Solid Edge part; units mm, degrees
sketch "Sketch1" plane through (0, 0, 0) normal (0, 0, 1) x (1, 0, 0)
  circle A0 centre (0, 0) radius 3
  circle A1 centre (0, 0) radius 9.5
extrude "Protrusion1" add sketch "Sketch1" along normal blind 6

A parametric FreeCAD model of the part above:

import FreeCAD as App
import Part
import Sketcher
from FreeCAD import Vector

doc = App.newDocument("Part")
body = doc.addObject("PartDesign::Body", "Body")

# Sketch on XY plane
sketch1 = doc.addObject("Sketcher::SketchObject", "Sketch")
body.addObject(sketch1)
sketch1.AttachmentSupport = (doc.XY_Plane, [""])
sketch1.MapMode = "FlatFace"
sketch1.addGeometry([
    Part.Circle(Vector(0, 0, 0), Vector(0, 0, 1), 9.5),
    Part.Circle(Vector(0, 0, 0), Vector(0, 0, 1), 3),
], False)
sketch1.addConstraint([
    Sketcher.Constraint("Coincident", 0, 3, -1, 1),
    Sketcher.Constraint("Coincident", 1, 3, -1, 1),
    Sketcher.Constraint("Diameter", 0, 19.0),
    Sketcher.Constraint("Diameter", 1, 6.0),
])
pad1 = doc.addObject("PartDesign::Pad", "Pad")
body.addObject(pad1)
pad1.Profile = sketch1
pad1.Length = 6

doc.recompute()
